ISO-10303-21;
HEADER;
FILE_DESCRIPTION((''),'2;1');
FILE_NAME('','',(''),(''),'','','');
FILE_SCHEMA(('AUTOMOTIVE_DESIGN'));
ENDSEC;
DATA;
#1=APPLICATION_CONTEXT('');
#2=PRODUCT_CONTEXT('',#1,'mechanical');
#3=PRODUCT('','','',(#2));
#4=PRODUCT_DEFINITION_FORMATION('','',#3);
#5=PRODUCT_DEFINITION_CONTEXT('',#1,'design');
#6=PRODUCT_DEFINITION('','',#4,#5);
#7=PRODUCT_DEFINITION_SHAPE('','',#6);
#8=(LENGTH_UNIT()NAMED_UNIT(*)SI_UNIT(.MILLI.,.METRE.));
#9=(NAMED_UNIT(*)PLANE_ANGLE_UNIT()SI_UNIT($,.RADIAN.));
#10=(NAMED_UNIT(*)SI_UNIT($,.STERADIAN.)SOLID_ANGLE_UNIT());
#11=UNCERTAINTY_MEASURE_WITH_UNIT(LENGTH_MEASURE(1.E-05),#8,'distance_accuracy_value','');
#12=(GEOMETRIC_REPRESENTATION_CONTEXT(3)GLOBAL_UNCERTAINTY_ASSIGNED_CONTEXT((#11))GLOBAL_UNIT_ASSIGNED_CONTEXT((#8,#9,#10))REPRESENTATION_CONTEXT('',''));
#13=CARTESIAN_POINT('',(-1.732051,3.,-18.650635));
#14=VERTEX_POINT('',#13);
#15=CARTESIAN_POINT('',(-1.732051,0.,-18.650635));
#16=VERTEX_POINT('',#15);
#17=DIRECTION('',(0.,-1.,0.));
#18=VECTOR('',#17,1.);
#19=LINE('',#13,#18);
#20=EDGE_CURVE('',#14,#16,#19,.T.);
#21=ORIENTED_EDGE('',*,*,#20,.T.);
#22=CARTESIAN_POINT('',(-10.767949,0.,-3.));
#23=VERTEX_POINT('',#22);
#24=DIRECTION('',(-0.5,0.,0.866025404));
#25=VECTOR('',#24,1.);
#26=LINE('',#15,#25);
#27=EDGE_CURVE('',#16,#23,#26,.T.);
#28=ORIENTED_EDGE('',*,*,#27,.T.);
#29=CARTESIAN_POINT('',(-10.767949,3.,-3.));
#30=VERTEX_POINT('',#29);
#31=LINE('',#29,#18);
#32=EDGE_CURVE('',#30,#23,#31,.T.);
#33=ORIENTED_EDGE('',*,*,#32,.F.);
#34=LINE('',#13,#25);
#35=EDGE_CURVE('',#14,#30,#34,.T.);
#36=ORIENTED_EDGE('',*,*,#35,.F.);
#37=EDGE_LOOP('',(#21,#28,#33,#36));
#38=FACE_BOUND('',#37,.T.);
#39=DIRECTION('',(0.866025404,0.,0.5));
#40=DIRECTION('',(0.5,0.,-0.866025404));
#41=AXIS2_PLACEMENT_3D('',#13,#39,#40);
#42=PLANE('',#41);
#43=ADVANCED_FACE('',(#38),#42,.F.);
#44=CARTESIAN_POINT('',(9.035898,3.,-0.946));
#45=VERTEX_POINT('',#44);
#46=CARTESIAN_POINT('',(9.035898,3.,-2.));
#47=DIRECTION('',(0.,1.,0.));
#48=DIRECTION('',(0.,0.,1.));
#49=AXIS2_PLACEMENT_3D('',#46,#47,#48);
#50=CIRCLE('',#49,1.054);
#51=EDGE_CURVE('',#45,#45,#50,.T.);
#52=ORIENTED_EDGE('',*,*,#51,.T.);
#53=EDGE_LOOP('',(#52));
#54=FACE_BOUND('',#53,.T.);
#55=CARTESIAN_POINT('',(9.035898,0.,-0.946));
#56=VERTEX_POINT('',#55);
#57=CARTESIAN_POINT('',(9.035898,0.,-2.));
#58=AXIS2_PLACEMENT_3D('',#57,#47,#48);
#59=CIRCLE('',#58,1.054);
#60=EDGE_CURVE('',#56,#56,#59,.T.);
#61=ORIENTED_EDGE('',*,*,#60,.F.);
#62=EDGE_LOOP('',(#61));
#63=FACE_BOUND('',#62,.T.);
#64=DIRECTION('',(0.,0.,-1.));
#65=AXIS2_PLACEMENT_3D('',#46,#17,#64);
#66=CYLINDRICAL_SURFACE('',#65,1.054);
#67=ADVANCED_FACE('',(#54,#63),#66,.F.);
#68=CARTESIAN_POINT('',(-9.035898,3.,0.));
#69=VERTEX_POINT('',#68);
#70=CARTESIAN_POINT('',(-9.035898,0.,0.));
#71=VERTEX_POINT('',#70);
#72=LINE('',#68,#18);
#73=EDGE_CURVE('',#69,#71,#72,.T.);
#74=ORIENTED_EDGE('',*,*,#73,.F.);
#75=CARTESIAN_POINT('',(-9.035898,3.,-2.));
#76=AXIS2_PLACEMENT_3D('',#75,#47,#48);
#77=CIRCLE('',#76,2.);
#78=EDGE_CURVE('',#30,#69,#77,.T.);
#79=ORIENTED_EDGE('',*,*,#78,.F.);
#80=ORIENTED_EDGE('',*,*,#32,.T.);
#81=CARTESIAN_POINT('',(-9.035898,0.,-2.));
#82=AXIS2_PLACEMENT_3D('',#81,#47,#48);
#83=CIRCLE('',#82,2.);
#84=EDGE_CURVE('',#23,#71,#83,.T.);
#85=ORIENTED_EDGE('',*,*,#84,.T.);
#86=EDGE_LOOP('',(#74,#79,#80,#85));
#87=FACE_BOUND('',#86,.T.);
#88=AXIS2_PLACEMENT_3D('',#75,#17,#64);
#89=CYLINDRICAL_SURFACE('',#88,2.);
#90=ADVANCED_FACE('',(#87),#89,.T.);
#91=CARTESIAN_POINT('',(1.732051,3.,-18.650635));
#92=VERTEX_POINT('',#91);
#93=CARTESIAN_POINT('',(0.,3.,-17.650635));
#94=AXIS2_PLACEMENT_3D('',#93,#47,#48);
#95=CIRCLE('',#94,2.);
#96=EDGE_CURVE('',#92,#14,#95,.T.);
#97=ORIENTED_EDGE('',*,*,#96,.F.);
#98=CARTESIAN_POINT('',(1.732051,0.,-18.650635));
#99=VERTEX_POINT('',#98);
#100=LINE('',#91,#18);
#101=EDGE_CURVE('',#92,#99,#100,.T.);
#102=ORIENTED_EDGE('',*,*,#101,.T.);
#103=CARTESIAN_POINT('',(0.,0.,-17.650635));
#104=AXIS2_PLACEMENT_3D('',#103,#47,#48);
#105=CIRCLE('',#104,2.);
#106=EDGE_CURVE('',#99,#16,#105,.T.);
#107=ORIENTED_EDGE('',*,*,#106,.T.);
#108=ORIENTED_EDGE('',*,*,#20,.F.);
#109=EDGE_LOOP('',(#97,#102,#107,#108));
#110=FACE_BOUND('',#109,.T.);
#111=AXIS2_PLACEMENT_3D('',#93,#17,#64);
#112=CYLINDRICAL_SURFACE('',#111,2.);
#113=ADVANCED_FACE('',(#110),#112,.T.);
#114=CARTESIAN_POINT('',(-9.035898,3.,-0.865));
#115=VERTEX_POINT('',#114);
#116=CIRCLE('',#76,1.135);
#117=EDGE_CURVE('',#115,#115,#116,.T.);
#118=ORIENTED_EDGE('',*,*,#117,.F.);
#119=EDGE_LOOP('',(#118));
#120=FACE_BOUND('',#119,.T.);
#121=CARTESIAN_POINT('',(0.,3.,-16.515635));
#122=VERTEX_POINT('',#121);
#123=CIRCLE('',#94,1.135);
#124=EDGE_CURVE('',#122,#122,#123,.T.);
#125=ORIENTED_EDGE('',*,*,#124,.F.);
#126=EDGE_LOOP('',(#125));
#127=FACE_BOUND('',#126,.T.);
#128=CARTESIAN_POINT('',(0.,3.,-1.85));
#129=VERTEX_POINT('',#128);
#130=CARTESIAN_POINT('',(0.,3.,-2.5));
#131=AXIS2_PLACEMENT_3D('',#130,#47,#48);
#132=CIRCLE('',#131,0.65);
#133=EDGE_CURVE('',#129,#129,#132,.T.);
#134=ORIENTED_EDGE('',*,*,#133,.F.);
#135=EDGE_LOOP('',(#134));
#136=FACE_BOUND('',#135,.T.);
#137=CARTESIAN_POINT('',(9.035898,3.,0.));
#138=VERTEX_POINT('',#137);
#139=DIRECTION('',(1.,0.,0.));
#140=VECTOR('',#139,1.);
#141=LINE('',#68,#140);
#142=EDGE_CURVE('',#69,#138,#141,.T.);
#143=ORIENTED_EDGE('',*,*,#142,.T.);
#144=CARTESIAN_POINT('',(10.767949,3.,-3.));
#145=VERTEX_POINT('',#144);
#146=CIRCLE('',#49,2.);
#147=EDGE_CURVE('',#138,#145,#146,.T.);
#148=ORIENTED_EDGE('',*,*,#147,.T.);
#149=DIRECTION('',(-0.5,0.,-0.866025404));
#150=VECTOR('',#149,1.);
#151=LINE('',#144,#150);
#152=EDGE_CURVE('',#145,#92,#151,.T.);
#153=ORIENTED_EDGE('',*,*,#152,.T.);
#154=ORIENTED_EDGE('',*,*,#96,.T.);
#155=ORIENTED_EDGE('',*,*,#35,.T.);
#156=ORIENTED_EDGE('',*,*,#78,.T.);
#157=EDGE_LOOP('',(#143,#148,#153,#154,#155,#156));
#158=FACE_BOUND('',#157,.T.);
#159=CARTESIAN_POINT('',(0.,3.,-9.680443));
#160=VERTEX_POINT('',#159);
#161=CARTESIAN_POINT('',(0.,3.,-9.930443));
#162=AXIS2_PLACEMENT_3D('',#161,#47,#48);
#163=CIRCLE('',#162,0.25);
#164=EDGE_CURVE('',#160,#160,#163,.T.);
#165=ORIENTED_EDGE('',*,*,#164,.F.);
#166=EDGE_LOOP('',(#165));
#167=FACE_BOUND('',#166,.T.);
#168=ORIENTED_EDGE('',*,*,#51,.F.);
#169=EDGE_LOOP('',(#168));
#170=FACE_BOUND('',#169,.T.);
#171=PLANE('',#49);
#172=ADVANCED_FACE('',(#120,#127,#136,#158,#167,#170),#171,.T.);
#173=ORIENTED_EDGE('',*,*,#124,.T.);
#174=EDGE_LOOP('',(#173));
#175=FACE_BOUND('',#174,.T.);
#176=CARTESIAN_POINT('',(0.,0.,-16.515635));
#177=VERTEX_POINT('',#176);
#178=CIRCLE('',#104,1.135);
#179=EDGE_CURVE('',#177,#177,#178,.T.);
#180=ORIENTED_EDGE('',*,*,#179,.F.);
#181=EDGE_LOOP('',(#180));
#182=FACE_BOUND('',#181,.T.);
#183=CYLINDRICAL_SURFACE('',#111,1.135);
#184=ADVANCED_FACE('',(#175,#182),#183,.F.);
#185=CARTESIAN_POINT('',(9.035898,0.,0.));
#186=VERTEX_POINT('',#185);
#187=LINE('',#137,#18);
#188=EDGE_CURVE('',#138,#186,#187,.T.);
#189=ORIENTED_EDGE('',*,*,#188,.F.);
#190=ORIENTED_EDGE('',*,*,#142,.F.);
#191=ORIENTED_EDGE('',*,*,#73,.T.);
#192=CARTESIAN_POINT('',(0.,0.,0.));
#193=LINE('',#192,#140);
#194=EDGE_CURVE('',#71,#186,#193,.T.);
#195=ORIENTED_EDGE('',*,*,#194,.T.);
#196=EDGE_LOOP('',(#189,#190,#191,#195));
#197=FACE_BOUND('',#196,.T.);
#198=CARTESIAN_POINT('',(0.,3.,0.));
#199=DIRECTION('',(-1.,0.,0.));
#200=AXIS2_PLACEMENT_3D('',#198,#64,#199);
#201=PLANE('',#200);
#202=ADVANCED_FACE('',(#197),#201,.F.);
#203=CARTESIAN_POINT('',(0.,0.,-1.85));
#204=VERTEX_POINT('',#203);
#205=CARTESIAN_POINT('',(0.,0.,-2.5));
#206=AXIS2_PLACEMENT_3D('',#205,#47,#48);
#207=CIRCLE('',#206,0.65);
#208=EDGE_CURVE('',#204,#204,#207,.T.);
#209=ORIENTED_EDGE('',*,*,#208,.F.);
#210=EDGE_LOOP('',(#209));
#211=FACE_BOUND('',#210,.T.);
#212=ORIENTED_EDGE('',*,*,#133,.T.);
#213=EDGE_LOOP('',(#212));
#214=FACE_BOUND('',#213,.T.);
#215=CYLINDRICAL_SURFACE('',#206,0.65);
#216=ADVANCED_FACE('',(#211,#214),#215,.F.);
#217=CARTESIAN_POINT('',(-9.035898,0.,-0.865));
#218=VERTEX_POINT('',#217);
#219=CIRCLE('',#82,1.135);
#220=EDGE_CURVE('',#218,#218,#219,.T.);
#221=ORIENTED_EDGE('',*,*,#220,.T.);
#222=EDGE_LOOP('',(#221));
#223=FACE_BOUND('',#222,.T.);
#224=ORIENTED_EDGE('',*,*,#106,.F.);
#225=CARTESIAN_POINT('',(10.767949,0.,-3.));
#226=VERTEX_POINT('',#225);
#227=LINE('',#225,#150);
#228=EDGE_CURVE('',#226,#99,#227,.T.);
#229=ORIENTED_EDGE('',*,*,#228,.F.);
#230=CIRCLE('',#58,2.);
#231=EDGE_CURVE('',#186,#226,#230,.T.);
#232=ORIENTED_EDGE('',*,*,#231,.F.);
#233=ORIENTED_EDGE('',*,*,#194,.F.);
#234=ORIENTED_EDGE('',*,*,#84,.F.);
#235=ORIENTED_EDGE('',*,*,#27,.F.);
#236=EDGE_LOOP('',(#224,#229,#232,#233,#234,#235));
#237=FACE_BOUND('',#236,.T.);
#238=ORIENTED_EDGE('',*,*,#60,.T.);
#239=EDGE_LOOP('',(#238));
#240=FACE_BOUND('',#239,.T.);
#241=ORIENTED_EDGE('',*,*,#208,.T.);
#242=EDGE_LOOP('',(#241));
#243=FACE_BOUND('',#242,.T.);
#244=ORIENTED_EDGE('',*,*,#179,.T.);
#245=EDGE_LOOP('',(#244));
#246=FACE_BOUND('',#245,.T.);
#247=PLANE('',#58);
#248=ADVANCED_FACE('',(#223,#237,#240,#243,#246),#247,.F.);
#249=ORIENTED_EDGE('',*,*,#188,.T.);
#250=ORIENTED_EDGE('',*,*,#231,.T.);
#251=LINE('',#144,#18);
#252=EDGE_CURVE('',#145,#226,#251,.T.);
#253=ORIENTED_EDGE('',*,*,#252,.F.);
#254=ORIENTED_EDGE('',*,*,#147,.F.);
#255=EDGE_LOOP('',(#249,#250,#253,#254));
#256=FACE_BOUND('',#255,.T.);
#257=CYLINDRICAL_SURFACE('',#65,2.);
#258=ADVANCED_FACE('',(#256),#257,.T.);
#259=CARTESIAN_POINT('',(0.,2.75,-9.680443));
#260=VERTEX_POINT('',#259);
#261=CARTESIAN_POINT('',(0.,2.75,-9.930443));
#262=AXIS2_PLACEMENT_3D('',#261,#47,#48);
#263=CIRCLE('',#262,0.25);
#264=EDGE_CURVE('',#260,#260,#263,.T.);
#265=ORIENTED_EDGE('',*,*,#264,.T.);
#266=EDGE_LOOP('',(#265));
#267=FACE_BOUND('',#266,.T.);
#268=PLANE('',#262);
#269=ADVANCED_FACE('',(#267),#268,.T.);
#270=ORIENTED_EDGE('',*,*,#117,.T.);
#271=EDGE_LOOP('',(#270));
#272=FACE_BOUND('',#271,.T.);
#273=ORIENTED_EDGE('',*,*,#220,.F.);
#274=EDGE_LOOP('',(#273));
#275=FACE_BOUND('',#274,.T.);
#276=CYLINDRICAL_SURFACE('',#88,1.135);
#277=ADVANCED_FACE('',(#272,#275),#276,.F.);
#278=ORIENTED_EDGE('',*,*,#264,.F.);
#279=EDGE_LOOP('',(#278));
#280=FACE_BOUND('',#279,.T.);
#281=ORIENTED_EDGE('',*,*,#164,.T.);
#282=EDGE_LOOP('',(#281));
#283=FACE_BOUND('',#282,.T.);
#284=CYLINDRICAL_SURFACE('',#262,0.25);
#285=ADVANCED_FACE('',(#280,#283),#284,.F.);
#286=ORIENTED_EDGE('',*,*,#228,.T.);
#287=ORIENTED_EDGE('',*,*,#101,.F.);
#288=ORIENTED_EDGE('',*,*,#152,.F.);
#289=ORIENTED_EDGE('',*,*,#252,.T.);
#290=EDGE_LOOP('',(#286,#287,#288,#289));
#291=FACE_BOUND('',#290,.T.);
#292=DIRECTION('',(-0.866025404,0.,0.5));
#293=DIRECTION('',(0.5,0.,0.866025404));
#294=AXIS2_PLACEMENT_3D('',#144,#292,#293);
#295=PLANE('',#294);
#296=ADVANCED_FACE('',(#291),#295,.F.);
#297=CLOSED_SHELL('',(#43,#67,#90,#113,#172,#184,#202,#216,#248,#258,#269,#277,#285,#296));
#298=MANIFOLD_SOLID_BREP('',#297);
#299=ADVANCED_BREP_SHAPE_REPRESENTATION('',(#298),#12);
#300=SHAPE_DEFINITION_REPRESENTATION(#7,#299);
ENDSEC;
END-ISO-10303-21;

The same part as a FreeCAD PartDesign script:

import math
import FreeCAD as App
import Part
import Sketcher

V = App.Vector
Q = App.Units.Quantity

doc = App.newDocument("Part")
body = doc.addObject("PartDesign::Body", "Body")

# Sketch on XZ plane
sketch1 = body.newObject("Sketcher::SketchObject", "Sketch")
sketch1.AttachmentSupport = (doc.getObject("XZ_Plane"), [""])
sketch1.MapMode = "FlatFace"
sketch1.addGeometry([
    Part.ArcOfCircle(Part.Circle(V(9, -2, 0), V(0, 0, 1), 2), math.radians(-30), math.radians(90)),  # 0
    Part.LineSegment(V(10.8, -3, 0), V(1.7, -18.7, 0)),  # 1
    Part.ArcOfCircle(Part.Circle(V(0, -17.7, 0), V(0, 0, 1), 2), math.radians(-150), math.radians(-30)),  # 2
    Part.LineSegment(V(-1.7, -18.7, 0), V(-10.8, -3, 0)),  # 3
    Part.ArcOfCircle(Part.Circle(V(-9, -2, 0), V(0, 0, 1), 2), math.radians(90), math.radians(210)),  # 4
    Part.LineSegment(V(-9, 0, 0), V(9, 0, 0)),  # 5
    Part.Circle(V(-9, -2, 0), V(0, 0, 1), 1.1),  # 6
    Part.Circle(V(9, -2, 0), V(0, 0, 1), 1.1),  # 7
    Part.Circle(V(0, -17.7, 0), V(0, 0, 1), 1.1),  # 8
], False)
sketch1.addConstraint([
    Sketcher.Constraint("Tangent", 0, 1, 1, 1),
    Sketcher.Constraint("Tangent", 1, 2, 2, 2),
    Sketcher.Constraint("Tangent", 2, 1, 3, 1),
    Sketcher.Constraint("Tangent", 3, 2, 4, 2),
    Sketcher.Constraint("Tangent", 4, 1, 5, 1),
    Sketcher.Constraint("Tangent", 5, 2, 0, 2),
    Sketcher.Constraint("Horizontal", 5),
    Sketcher.Constraint("Coincident", 6, 3, 4, 3),
    Sketcher.Constraint("Coincident", 7, 3, 0, 3),
    Sketcher.Constraint("Coincident", 8, 3, 2, 3),
    Sketcher.Constraint("Equal", 0, 2),
    Sketcher.Constraint("Equal", 2, 4),
    Sketcher.Constraint("Equal", 6, 8),
    Sketcher.Constraint("Symmetric", 4, 1, 5, 2, -1, 1),
    Sketcher.Constraint("PointOnObject", 2, 3, -2),
    Sketcher.Constraint("Radius", 0, Q("2 mm")),
    Sketcher.Constraint("Diameter", 6, Q("2.27 mm")),
    Sketcher.Constraint("Angle", 1, Q("-120 deg")),
    Sketcher.Constraint("Diameter", 7, Q("2.108 mm")),
    Sketcher.Constraint("DistanceX", -1, 1, 0, 3, Q("9.035898 mm")),
])
pad1 = body.newObject("PartDesign::Pad", "Pad")
pad1.Profile = sketch1
pad1.Length = 3
pad1.Reversed = True

# Sketch on XZ plane
sketch2 = body.newObject("Sketcher::SketchObject", "Sketch001")
sketch2.AttachmentSupport = (doc.getObject("XZ_Plane"), [""])
sketch2.MapMode = "FlatFace"
sketch2.AttachmentOffset = App.Placement(V(0, 0, -3), App.Rotation())
sketch2.addGeometry(Part.Circle(V(0, -2.5, 0), V(0, 0, 1), 0.7), False)
sketch2.addConstraint([
    Sketcher.Constraint("PointOnObject", 0, 3, -2),
    Sketcher.Constraint("Diameter", 0, Q("1.3 mm")),
    Sketcher.Constraint("DistanceY", 0, 3, -1, 1, Q("2.5 mm")),
])
pocket1 = body.newObject("PartDesign::Pocket", "Pocket")
pocket1.Profile = sketch2
pocket1.Type = "ThroughAll"
pocket1.Reversed = True

# Sketch on XZ plane
sketch3 = body.newObject("Sketcher::SketchObject", "Sketch002")
sketch3.AttachmentSupport = (doc.getObject("XZ_Plane"), [""])
sketch3.MapMode = "FlatFace"
sketch3.AttachmentOffset = App.Placement(V(0, 0, -3), App.Rotation())
sketch3.addGeometry(Part.Circle(V(0, -9.93, 0), V(0, 0, 1), 0.25), False)
sketch3.addConstraint([
    Sketcher.Constraint("PointOnObject", 0, 3, -2),
    Sketcher.Constraint("Diameter", 0, Q("0.5 mm")),
    Sketcher.Constraint("DistanceY", 0, 3, -1, 1, Q("9.930443 mm")),
])
pocket2 = body.newObject("PartDesign::Pocket", "Pocket001")
pocket2.Profile = sketch3
pocket2.Length = 0.25
pocket2.Reversed = True

doc.recompute()
